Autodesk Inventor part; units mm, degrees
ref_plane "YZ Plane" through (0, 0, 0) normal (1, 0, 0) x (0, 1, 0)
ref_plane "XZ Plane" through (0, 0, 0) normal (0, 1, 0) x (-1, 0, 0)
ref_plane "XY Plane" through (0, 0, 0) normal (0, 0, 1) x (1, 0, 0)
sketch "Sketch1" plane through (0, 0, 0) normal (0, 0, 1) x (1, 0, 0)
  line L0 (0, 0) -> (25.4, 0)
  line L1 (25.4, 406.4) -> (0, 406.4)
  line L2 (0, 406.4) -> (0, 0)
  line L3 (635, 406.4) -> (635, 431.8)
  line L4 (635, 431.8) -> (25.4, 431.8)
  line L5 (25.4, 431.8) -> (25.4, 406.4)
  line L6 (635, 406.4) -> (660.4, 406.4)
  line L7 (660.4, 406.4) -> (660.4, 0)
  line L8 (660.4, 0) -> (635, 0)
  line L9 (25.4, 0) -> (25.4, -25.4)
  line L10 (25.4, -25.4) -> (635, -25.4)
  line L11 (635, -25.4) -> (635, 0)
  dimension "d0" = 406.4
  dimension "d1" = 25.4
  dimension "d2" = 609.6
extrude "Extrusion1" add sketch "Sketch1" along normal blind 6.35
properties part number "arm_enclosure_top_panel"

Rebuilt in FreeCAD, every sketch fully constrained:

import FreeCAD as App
import Part
import Sketcher
from FreeCAD import Vector
Q = App.Units.Quantity


def add_polygon(sketch, points):
    """Adds a closed chain of lines whose ends are joined by coincident constraints."""
    first, n = sketch.GeometryCount, len(points)
    for a, b in zip(points, points[1:] + points[:1]):
        sketch.addGeometry(Part.LineSegment(App.Vector(*a, 0), App.Vector(*b, 0)), False)
    for i in range(n):
        sketch.addConstraint(Sketcher.Constraint("Coincident", first + i, 2, first + (i + 1) % n, 1))

doc = App.newDocument("Part")
body = doc.addObject("PartDesign::Body", "Body")

# Sketch on XY plane
sketch1 = body.newObject("Sketcher::SketchObject", "Sketch")
sketch1.AttachmentSupport = (doc.getObject("XY_Plane"), [""])
sketch1.MapMode = "FlatFace"
add_polygon(sketch1, [(0, 406.4), (0, 0), (25.4, 0), (25.4, -25.4), (635, -25.4), (635, 0), (660.4, 0), (660.4, 406.4), (635, 406.4), (635, 431.8), (25.4, 431.8), (25.4, 406.4)])  # lines 0-11
sketch1.addConstraint([
    Sketcher.Constraint("Vertical", 0),
    Sketcher.Constraint("Horizontal", 1),
    Sketcher.Constraint("Vertical", 2),
    Sketcher.Constraint("Horizontal", 3),
    Sketcher.Constraint("Vertical", 4),
    Sketcher.Constraint("Horizontal", 5),
    Sketcher.Constraint("Vertical", 6),
    Sketcher.Constraint("Horizontal", 7),
    Sketcher.Constraint("Vertical", 8),
    Sketcher.Constraint("Horizontal", 9),
    Sketcher.Constraint("Vertical", 10),
    Sketcher.Constraint("Horizontal", 11),
    Sketcher.Constraint("Coincident", 0, 2, -1, 1),
    Sketcher.Constraint("PointOnObject", 4, 2, -1),
    Sketcher.Constraint("Horizontal", 7, 2, 10, 2),
    Sketcher.Constraint("Vertical", 4, 2, 7, 2),
    Sketcher.Constraint("Vertical", 2, 2, 9, 2),
    Sketcher.Constraint("Equal", 1, 5),
    Sketcher.Constraint("Equal", 11, 2),
    Sketcher.Constraint("Equal", 4, 8),
    Sketcher.Constraint("DistanceX", 1, 1, 1, 2, Q("1 in")),
    Sketcher.Constraint("DistanceX", 3, 1, 3, 2, Q("24 in")),
    Sketcher.Constraint("DistanceY", 0, 2, 0, 1, Q("16 in")),
])
pad1 = body.newObject("PartDesign::Pad", "Pad")
pad1.Profile = sketch1
pad1.Length = Q("0.25 in")

doc.recompute()
